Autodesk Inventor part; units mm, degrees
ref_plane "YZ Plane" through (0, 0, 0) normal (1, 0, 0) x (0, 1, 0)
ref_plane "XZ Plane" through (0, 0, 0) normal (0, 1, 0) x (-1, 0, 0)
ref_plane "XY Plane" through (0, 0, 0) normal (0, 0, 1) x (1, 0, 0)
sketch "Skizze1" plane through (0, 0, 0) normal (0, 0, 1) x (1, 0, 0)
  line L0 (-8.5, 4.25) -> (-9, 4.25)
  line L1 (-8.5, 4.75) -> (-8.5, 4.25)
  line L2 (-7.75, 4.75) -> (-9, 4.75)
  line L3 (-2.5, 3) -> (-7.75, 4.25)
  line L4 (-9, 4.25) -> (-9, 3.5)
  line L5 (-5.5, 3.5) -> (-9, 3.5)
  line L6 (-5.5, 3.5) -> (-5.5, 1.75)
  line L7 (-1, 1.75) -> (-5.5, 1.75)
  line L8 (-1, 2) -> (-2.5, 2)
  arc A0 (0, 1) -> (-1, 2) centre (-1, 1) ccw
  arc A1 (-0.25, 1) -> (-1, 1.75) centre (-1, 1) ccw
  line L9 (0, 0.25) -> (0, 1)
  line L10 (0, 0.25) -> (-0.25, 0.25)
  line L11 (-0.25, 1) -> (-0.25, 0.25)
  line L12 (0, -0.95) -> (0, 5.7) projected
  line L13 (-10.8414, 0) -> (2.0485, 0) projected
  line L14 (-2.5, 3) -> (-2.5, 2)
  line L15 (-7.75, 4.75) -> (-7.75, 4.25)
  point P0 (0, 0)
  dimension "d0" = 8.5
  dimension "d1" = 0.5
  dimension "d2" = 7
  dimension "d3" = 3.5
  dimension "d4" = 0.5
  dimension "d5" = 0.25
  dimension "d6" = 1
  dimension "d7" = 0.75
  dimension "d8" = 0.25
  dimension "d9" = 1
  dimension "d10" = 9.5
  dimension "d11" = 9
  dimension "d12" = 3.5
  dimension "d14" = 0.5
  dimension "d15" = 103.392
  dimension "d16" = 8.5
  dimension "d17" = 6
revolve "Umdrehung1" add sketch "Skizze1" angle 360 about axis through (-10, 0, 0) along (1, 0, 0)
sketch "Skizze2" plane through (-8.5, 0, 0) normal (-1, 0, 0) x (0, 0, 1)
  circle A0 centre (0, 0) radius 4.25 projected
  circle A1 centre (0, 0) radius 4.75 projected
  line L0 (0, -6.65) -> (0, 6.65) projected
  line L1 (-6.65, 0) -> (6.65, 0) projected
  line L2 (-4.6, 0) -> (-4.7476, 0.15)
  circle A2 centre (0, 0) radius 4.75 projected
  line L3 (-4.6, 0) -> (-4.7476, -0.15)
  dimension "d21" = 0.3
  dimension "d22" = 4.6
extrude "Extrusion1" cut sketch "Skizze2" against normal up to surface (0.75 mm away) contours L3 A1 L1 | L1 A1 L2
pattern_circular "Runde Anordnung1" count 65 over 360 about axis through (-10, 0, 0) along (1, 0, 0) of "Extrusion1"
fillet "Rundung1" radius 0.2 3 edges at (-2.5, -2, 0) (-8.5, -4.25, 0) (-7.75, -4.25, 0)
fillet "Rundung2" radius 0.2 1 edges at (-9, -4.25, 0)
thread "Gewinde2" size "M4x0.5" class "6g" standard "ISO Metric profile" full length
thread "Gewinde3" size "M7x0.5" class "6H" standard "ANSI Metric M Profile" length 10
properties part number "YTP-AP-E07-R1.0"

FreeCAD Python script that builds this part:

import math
import FreeCAD as App
import Part
import Sketcher

V = App.Vector


def edges_at(feature, points):
    """Names of the edges that pass closest to the given points."""
    edges = feature.Shape.Edges
    near = lambda p: min(range(len(edges)), key=lambda i: edges[i].distToShape(Part.Vertex(*p))[0])
    return sorted({f"Edge{near(p) + 1}" for p in points})

doc = App.newDocument("Part")
body = doc.addObject("PartDesign::Body", "Body")

# Sketch on XY plane
sketch1 = body.newObject("Sketcher::SketchObject", "Sketch")
sketch1.AttachmentSupport = (doc.getObject("XY_Plane"), [""])
sketch1.MapMode = "FlatFace"
sketch1.addGeometry([
    Part.LineSegment(V(-8.5, 4.75, 0), V(-8.5, 4.25, 0)),  # 0
    Part.LineSegment(V(-8.5, 4.25, 0), V(-9, 4.25, 0)),  # 1
    Part.LineSegment(V(-9, 4.25, 0), V(-9, 3.5, 0)),  # 2
    Part.LineSegment(V(-9, 3.5, 0), V(-5.5, 3.5, 0)),  # 3
    Part.LineSegment(V(-5.5, 3.5, 0), V(-5.5, 1.75, 0)),  # 4
    Part.LineSegment(V(-5.5, 1.75, 0), V(-1, 1.75, 0)),  # 5
    Part.ArcOfCircle(Part.Circle(V(-1, 1, 0), V(0, 0, 1), 0.75), math.radians(0), math.radians(90)),  # 6
    Part.LineSegment(V(-0.25, 1, 0), V(-0.25, 0.25, 0)),  # 7
    Part.LineSegment(V(-0.25, 0.25, 0), V(0, 0.25, 0)),  # 8
    Part.LineSegment(V(0, 0.25, 0), V(0, 1, 0)),  # 9
    Part.ArcOfCircle(Part.Circle(V(-1, 1, 0), V(0, 0, 1), 1), math.radians(0), math.radians(90)),  # 10
    Part.LineSegment(V(-1, 2, 0), V(-2.5, 2, 0)),  # 11
    Part.LineSegment(V(-2.5, 2, 0), V(-2.5, 3, 0)),  # 12
    Part.LineSegment(V(-2.5, 3, 0), V(-7.75, 4.25, 0)),  # 13
    Part.LineSegment(V(-7.75, 4.25, 0), V(-7.75, 4.75, 0)),  # 14
    Part.LineSegment(V(-7.75, 4.75, 0), V(-8.5, 4.75, 0)),  # 15
], False)
sketch1.addConstraint([
    Sketcher.Constraint("Coincident", 0, 2, 1, 1),
    Sketcher.Constraint("Coincident", 1, 2, 2, 1),
    Sketcher.Constraint("Coincident", 2, 2, 3, 1),
    Sketcher.Constraint("Coincident", 3, 2, 4, 1),
    Sketcher.Constraint("Coincident", 4, 2, 5, 1),
    Sketcher.Constraint("Tangent", 5, 2, 6, 2),
    Sketcher.Constraint("Tangent", 6, 1, 7, 1),
    Sketcher.Constraint("Coincident", 7, 2, 8, 1),
    Sketcher.Constraint("Coincident", 8, 2, 9, 1),
    Sketcher.Constraint("Tangent", 9, 2, 10, 1),
    Sketcher.Constraint("Tangent", 10, 2, 11, 1),
    Sketcher.Constraint("Coincident", 11, 2, 12, 1),
    Sketcher.Constraint("Coincident", 12, 2, 13, 1),
    Sketcher.Constraint("Coincident", 13, 2, 14, 1),
    Sketcher.Constraint("Coincident", 14, 2, 15, 1),
    Sketcher.Constraint("Coincident", 15, 2, 0, 1),
    Sketcher.Constraint("Vertical", 0),
    Sketcher.Constraint("Horizontal", 1),
    Sketcher.Constraint("Vertical", 2),
    Sketcher.Constraint("Horizontal", 3),
    Sketcher.Constraint("Vertical", 4),
    Sketcher.Constraint("Horizontal", 5),
    Sketcher.Constraint("Vertical", 7),
    Sketcher.Constraint("Horizontal", 8),
    Sketcher.Constraint("Vertical", 9),
    Sketcher.Constraint("Horizontal", 11),
    Sketcher.Constraint("Vertical", 12),
    Sketcher.Constraint("Vertical", 14),
    Sketcher.Constraint("Horizontal", 15),
    Sketcher.Constraint("Coincident", 10, 3, 6, 3),
    Sketcher.Constraint("PointOnObject", 8, 2, -2),
    Sketcher.Constraint("Horizontal", 1, 2, 13, 2),
    Sketcher.Constraint("Equal", 1, 0),
    Sketcher.Constraint("Equal", 15, 2),
    Sketcher.Constraint("Equal", 2, 7),
    Sketcher.Constraint("Radius", 10, 1.0),
    Sketcher.Constraint("DistanceY", 12, 1, 12, 2, 1.0),
    Sketcher.Constraint("Radius", 6, 0.75),
    Sketcher.Constraint("DistanceX", 1, 2, 1, 1, 0.5),
    Sketcher.Constraint("DistanceX", 3, 1, 3, 2, 3.5),
    Sketcher.Constraint("DistanceY", -1, 1, 6, 3, 1.0),
    Sketcher.Constraint("DistanceX", 1, 2, -1, 1, 9.0),
    Sketcher.Constraint("DistanceX", 15, 2, 15, 1, 0.75),
    Sketcher.Constraint("DistanceY", -1, 1, 2, 2, 3.5),
    Sketcher.Constraint("DistanceX", 11, 2, 11, 1, 1.5),
])
revolution = body.newObject("PartDesign::Revolution", "Revolution")
revolution.Profile = sketch1
revolution.ReferenceAxis = (sketch1, ["H_Axis"])
revolution.Angle = 360

# Sketch on YZ plane
sketch2 = body.newObject("Sketcher::SketchObject", "Sketch001")
sketch2.AttachmentSupport = (doc.getObject("YZ_Plane"), [""])
sketch2.MapMode = "FlatFace"
sketch2.AttachmentOffset = App.Placement(V(0, 0, -8.5), App.Rotation())
sketch2.addGeometry([
    Part.LineSegment(V(-0.15, -4.75, 0), V(0, -4.6, 0)),
    Part.LineSegment(V(0, -4.6, 0), V(0.15, -4.75, 0)),
    Part.ArcOfCircle(Part.Circle(V(0, 0, 0), V(0, 0, 1), 4.75), math.radians(-91.81), math.radians(-88.19)),
], False)
sketch2.addConstraint([
    Sketcher.Constraint("Coincident", 0, 2, 1, 1),
    Sketcher.Constraint("Coincident", 1, 2, 2, 2),
    Sketcher.Constraint("Coincident", 2, 1, 0, 1),
    Sketcher.Constraint("Coincident", 2, 3, -1, 1),
    Sketcher.Constraint("PointOnObject", 0, 2, -2),
    Sketcher.Constraint("Horizontal", 1, 2, 2, 1),
    Sketcher.Constraint("DistanceY", 0, 2, -1, 1, 4.6),
    Sketcher.Constraint("DistanceX", 2, 1, 1, 2, 0.3),
    Sketcher.Constraint("Radius", 2, 4.75),
])
pocket1 = body.newObject("PartDesign::Pocket", "Pocket")
pocket1.Profile = sketch2
pocket1.Length = 0.75
pocket1.Reversed = True
doc.recompute()

polarpattern = body.newObject("PartDesign::PolarPattern", "PolarPattern")
polarpattern.Originals = [pocket1]
polarpattern.Axis = (doc.getObject("X_Axis"), [""])
polarpattern.Angle = 360
polarpattern.Occurrences = 65
body.Tip = polarpattern
doc.recompute()

fillet = body.newObject("PartDesign::Fillet", "Fillet")
fillet.Base = (polarpattern, edges_at(polarpattern, [(-2.5, -2, 0), (-8.5, -4.25, 0), (-7.75, -4.25, 0)]))
fillet.Radius = 0.2
doc.recompute()

fillet2 = body.newObject("PartDesign::Fillet", "Fillet001")
fillet2.Base = (fillet, edges_at(fillet, [(-9, -4.25, 0)]))
fillet2.Radius = 0.2

doc.recompute()
